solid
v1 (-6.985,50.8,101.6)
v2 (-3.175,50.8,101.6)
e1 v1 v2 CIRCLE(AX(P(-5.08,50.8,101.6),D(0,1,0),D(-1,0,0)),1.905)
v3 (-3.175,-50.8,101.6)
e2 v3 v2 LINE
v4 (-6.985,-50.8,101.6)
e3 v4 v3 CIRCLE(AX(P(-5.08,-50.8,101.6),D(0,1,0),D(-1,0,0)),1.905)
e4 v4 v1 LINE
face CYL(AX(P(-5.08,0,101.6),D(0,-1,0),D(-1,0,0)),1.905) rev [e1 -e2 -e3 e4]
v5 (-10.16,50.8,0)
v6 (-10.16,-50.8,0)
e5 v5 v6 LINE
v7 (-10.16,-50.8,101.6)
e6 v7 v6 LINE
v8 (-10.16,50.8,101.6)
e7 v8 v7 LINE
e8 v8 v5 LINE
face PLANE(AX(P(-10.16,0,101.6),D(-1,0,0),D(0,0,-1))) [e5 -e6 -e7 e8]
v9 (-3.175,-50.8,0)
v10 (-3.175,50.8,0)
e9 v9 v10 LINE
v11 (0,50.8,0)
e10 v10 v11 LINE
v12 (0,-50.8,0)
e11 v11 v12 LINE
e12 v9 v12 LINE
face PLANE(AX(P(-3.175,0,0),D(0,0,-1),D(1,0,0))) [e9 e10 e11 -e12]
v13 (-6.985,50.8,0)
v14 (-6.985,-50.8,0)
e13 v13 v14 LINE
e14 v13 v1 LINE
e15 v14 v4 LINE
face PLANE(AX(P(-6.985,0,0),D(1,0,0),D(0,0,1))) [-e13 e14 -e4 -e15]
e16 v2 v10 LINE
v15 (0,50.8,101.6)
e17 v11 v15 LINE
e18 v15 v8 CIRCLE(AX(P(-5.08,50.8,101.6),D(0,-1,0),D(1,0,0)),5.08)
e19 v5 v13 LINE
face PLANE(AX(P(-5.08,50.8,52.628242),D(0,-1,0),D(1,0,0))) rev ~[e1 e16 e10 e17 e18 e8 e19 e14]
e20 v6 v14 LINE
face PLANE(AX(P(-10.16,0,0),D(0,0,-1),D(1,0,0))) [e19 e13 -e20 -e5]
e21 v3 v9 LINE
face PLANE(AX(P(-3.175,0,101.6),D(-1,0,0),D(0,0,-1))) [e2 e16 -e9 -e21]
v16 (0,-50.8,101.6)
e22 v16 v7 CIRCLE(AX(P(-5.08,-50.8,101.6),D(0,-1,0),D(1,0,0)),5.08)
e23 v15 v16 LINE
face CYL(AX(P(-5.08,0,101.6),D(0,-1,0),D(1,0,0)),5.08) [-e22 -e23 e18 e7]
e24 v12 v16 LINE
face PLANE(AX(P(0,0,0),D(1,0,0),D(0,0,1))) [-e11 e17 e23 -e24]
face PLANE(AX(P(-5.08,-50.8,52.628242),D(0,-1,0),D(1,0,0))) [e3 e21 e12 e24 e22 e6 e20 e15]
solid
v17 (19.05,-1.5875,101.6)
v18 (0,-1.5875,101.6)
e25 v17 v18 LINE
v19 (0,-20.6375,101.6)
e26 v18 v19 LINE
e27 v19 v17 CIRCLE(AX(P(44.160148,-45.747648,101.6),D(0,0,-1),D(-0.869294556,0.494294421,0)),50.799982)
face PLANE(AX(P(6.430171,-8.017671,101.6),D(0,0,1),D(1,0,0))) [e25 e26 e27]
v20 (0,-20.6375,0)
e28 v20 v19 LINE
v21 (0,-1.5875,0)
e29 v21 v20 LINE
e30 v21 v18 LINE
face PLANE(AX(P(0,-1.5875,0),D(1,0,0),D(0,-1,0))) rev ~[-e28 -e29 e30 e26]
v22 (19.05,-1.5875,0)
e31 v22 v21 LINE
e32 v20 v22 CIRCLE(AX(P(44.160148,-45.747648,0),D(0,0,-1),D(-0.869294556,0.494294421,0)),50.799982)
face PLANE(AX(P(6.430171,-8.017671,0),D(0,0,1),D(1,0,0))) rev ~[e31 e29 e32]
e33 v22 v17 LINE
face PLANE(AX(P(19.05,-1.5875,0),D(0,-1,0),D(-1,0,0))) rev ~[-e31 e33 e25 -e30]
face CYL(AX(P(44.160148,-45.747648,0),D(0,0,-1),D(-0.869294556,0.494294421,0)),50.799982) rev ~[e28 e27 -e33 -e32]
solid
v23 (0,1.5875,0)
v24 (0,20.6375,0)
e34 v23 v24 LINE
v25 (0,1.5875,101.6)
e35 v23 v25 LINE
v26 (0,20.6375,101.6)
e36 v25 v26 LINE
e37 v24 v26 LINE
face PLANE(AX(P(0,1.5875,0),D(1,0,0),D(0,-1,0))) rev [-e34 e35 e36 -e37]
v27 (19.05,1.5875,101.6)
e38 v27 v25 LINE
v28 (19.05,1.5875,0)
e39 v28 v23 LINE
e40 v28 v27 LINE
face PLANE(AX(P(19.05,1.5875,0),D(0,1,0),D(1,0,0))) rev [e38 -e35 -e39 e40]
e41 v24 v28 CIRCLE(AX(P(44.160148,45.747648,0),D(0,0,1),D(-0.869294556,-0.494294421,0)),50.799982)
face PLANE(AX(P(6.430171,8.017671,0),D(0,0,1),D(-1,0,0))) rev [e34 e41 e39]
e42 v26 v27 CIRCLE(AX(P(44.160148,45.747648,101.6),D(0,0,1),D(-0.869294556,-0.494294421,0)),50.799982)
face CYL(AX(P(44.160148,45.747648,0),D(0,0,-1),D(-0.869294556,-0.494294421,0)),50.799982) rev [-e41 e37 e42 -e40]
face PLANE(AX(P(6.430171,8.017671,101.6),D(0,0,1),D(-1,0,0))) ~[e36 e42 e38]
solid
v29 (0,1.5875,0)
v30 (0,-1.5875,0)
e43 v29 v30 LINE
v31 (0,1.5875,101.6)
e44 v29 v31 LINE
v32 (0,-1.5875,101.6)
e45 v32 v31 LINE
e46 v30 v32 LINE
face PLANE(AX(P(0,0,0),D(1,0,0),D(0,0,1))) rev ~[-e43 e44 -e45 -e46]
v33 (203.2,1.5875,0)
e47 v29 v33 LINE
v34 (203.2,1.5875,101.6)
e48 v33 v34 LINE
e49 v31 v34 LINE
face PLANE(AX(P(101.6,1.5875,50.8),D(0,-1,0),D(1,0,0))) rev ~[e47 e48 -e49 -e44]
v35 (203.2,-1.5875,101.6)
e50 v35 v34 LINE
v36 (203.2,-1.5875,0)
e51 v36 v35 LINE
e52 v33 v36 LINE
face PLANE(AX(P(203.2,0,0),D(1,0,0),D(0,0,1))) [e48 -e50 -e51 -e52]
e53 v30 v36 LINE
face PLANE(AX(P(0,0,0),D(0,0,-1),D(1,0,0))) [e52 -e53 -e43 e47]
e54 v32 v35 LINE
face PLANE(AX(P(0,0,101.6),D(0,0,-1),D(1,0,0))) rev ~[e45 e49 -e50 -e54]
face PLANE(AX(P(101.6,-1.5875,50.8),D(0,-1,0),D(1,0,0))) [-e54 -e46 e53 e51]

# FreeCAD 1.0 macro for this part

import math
import FreeCAD as App
import Part
import Sketcher

V = App.Vector
Q = App.Units.Quantity

doc = App.newDocument("Part")
body = doc.addObject("PartDesign::Body", "Body")

sketch1 = body.newObject("Sketcher::SketchObject", "Sketch")
sketch1.AttachmentSupport = (doc.getObject("XZ_Plane"), [""])
sketch1.MapMode = "FlatFace"
sketch1.addGeometry(Part.LineSegment(V(0, 102, 0), V(0, 0, 0)), False)
sketch1.addGeometry(Part.LineSegment(V(0, 0, 0), V(203, 0, 0)), False)
sketch1.addGeometry(Part.LineSegment(V(203, 0, 0), V(203, 102, 0)), False)
sketch1.addGeometry(Part.LineSegment(V(203, 102, 0), V(0, 102, 0)), False)
sketch1.addConstraint(Sketcher.Constraint("Coincident", 0, 2, 1, 1))
sketch1.addConstraint(Sketcher.Constraint("Coincident", 1, 2, 2, 1))
sketch1.addConstraint(Sketcher.Constraint("Coincident", 2, 2, 3, 1))
sketch1.addConstraint(Sketcher.Constraint("Coincident", 3, 2, 0, 1))
sketch1.addConstraint(Sketcher.Constraint("Vertical", 0))
sketch1.addConstraint(Sketcher.Constraint("Horizontal", 1))
sketch1.addConstraint(Sketcher.Constraint("Vertical", 2))
sketch1.addConstraint(Sketcher.Constraint("Horizontal", 3))
sketch1.addConstraint(Sketcher.Constraint("Coincident", 0, 2, -1, 1))
sketch1.addConstraint(Sketcher.Constraint("DistanceX", 1, 1, 1, 2, Q("8 in")))
sketch1.addConstraint(Sketcher.Constraint("DistanceY", 0, 2, 0, 1, Q("4 in")))
pad1 = body.newObject("PartDesign::Pad", "Pad")
pad1.Profile = sketch1
pad1.Length = Q("0.125 in")
pad1.Midplane = True
body2 = doc.addObject("PartDesign::Body", "Body001")

sketch2 = body2.newObject("Sketcher::SketchObject", "Sketch001")
sketch2.AttachmentSupport = (doc.getObject("XZ_Plane001"), [""])
sketch2.MapMode = "FlatFace"
sketch2.addGeometry(Part.LineSegment(V(-3.2, 0, 0), V(0, 0, 0)), False)
sketch2.addGeometry(Part.LineSegment(V(0, 0, 0), V(0, 101.6, 0)), False)
sketch2.addGeometry(Part.ArcOfCircle(Part.Circle(V(-5.1, 101.6, 0), V(0, 0, 1), 5.1), math.radians(0), math.radians(180)), False)
sketch2.addGeometry(Part.LineSegment(V(-10.2, 101.6, 0), V(-10.2, 0, 0)), False)
sketch2.addGeometry(Part.LineSegment(V(-10.2, 0, 0), V(-7, 0, 0)), False)
sketch2.addGeometry(Part.LineSegment(V(-7, 0, 0), V(-7, 101.6, 0)), False)
sketch2.addGeometry(Part.ArcOfCircle(Part.Circle(V(-5.1, 101.6, 0), V(0, 0, 1), 1.9), math.radians(0), math.radians(180)), False)
sketch2.addGeometry(Part.LineSegment(V(-3.2, 101.6, 0), V(-3.2, 0, 0)), False)
sketch2.addConstraint(Sketcher.Constraint("Coincident", 0, 2, 1, 1))
sketch2.addConstraint(Sketcher.Constraint("Tangent", 1, 2, 2, 1))
sketch2.addConstraint(Sketcher.Constraint("Tangent", 2, 2, 3, 1))
sketch2.addConstraint(Sketcher.Constraint("Coincident", 3, 2, 4, 1))
sketch2.addConstraint(Sketcher.Constraint("Coincident", 4, 2, 5, 1))
sketch2.addConstraint(Sketcher.Constraint("Tangent", 5, 2, 6, 2))
sketch2.addConstraint(Sketcher.Constraint("Tangent", 6, 1, 7, 1))
sketch2.addConstraint(Sketcher.Constraint("Coincident", 7, 2, 0, 1))
sketch2.addConstraint(Sketcher.Constraint("Horizontal", 0))
sketch2.addConstraint(Sketcher.Constraint("Vertical", 1))
sketch2.addConstraint(Sketcher.Constraint("Vertical", 3))
sketch2.addConstraint(Sketcher.Constraint("Horizontal", 4))
sketch2.addConstraint(Sketcher.Constraint("Vertical", 5))
sketch2.addConstraint(Sketcher.Constraint("Vertical", 7))
sketch2.addConstraint(Sketcher.Constraint("Coincident", 0, 2, -1, 1))
sketch2.addConstraint(Sketcher.Constraint("Coincident", 6, 3, 2, 3))
sketch2.addConstraint(Sketcher.Constraint("PointOnObject", 3, 2, -1))
sketch2.addConstraint(Sketcher.Constraint("Radius", 2, Q("0.2 in")))
sketch2.addConstraint(Sketcher.Constraint("DistanceY", 1, 1, 1, 2, Q("4 in")))
sketch2.addConstraint(Sketcher.Constraint("Radius", 6, Q("0.075 in")))
pad2 = body2.newObject("PartDesign::Pad", "Pad001")
pad2.Profile = sketch2
pad2.Length = Q("4 in")
pad2.Midplane = True
body3 = doc.addObject("PartDesign::Body", "Body002")

sketch3 = body3.newObject("Sketcher::SketchObject", "Sketch002")
sketch3.AttachmentSupport = (doc.getObject("XY_Plane002"), [""])
sketch3.MapMode = "FlatFace"
sketch3.addGeometry(Part.LineSegment(V(0, -2, 0), V(0, -21, 0)), False)
sketch3.addGeometry(Part.ArcOfCircle(Part.Circle(V(44, -46, 0), V(0, 0, 1), 51), math.radians(120), math.radians(150)), False)
sketch3.addGeometry(Part.LineSegment(V(19, -2, 0), V(0, -2, 0)), False)
sketch3.addConstraint(Sketcher.Constraint("Coincident", 0, 2, 1, 2))
sketch3.addConstraint(Sketcher.Constraint("Coincident", 1, 1, 2, 1))
sketch3.addConstraint(Sketcher.Constraint("Coincident", 2, 2, 0, 1))
sketch3.addConstraint(Sketcher.Constraint("Vertical", 0))
sketch3.addConstraint(Sketcher.Constraint("Horizontal", 2))
sketch3.addConstraint(Sketcher.Constraint("PointOnObject", 0, 2, -2))
sketch3.addConstraint(Sketcher.Constraint("Equal", 2, 0))
sketch3.addConstraint(Sketcher.Constraint("DistanceX", 2, 2, 2, 1, Q("0.75 in")))
sketch3.addConstraint(Sketcher.Constraint("DistanceY", 0, 2, -1, 1, Q("0.8125 in")))
sketch3.addConstraint(Sketcher.Constraint("Radius", 1, Q("50.799982 mm")))
pad3 = body3.newObject("PartDesign::Pad", "Pad002")
pad3.Profile = sketch3
pad3.Length = Q("4 in")
body4 = doc.addObject("PartDesign::Body", "Body003")
doc.recompute()

mirroring = doc.addObject("Part::Mirroring", "Mirroring")
mirroring.Source = body3
mirroring.Base = V(0, 0, 0)
mirroring.Normal = V(0, -1, 0)
body4.BaseFeature = mirroring
doc.recompute()
mirroring.Visibility = False

doc.recompute()
